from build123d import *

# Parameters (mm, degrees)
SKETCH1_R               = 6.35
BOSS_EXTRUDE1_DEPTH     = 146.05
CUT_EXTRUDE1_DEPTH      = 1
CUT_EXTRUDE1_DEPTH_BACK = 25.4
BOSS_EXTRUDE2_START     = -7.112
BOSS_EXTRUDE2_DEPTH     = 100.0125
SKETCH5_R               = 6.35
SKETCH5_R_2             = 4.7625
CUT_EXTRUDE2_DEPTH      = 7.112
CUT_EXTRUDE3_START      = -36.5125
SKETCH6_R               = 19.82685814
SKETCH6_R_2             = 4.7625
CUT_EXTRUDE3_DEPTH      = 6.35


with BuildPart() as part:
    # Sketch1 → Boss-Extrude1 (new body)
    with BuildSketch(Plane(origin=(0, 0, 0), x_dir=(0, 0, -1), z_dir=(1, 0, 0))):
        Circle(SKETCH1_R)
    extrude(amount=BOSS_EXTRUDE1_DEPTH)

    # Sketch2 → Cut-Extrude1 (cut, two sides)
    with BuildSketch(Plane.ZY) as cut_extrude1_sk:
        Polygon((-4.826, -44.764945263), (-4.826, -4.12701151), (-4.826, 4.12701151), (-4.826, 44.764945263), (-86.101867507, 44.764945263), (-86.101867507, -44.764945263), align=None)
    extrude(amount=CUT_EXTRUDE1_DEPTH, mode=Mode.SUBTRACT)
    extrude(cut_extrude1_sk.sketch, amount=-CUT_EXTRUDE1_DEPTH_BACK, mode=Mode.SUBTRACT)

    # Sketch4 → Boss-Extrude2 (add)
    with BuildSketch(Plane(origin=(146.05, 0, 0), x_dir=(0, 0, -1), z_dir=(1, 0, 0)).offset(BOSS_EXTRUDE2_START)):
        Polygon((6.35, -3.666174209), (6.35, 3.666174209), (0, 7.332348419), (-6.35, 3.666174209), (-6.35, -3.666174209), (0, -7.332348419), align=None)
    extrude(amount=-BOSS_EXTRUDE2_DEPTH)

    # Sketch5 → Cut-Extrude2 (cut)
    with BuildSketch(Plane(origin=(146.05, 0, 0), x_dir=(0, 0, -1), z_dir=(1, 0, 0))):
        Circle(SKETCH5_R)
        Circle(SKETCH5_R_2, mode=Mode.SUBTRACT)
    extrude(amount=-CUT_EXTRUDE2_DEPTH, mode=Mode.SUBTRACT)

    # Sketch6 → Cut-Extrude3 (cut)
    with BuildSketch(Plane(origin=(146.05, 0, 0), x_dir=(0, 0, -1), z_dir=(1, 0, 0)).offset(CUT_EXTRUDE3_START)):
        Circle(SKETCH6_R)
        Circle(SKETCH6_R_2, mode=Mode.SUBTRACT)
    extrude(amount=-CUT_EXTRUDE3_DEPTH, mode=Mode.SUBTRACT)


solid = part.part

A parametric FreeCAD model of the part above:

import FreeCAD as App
import Part
import Sketcher
Q = App.Units.Quantity

doc = App.newDocument("Part")
body = doc.addObject("PartDesign::Body", "Body")

# Sketch on YZ plane
sketch1 = doc.addObject("Sketcher::SketchObject", "Sketch")
body.addObject(sketch1)
sketch1.AttachmentSupport = (doc.YZ_Plane, [""])
sketch1.MapMode = "FlatFace"
sketch1.addGeometry(Part.Circle(App.Vector(0, 0, 0), App.Vector(0, 0, 1), 6), False)
sketch1.addConstraint(Sketcher.Constraint("Coincident", 0, 3, -1, 1))
sketch1.addConstraint(Sketcher.Constraint("Diameter", 0, Q("0.5 in")))
pad1 = doc.addObject("PartDesign::Pad", "Pad")
body.addObject(pad1)
pad1.Profile = sketch1
pad1.Length = Q("5.75 in")

# Sketch on YZ plane
sketch2 = doc.addObject("Sketcher::SketchObject", "Sketch001")
body.addObject(sketch2)
sketch2.AttachmentSupport = (doc.YZ_Plane, [""])
sketch2.MapMode = "FlatFace"
sketch2.addGeometry(Part.LineSegment(App.Vector(-45, -5, 0), App.Vector(45, -5, 0)), False)
sketch2.addGeometry(Part.LineSegment(App.Vector(45, -5, 0), App.Vector(45, -86, 0)), False)
sketch2.addGeometry(Part.LineSegment(App.Vector(45, -86, 0), App.Vector(-45, -86, 0)), False)
sketch2.addGeometry(Part.LineSegment(App.Vector(-45, -86, 0), App.Vector(-45, -5, 0)), False)
sketch2.addConstraint(Sketcher.Constraint("Coincident", 0, 2, 1, 1))
sketch2.addConstraint(Sketcher.Constraint("Coincident", 1, 2, 2, 1))
sketch2.addConstraint(Sketcher.Constraint("Coincident", 2, 2, 3, 1))
sketch2.addConstraint(Sketcher.Constraint("Coincident", 3, 2, 0, 1))
sketch2.addConstraint(Sketcher.Constraint("Horizontal", 0))
sketch2.addConstraint(Sketcher.Constraint("Vertical", 1))
sketch2.addConstraint(Sketcher.Constraint("Horizontal", 2))
sketch2.addConstraint(Sketcher.Constraint("Vertical", 3))
sketch2.addConstraint(Sketcher.Constraint("DistanceY", 0, 2, -1, 1, Q("0.19 in")))
sketch2.addConstraint(Sketcher.Constraint("DistanceX", 0, 1, 0, 2, 89.529891))
sketch2.addConstraint(Sketcher.Constraint("DistanceY", 1, 2, 1, 1, 81.275868))
sketch2.addConstraint(Sketcher.Constraint("DistanceX", -1, 1, 0, 2, 44.764945))
pocket1 = doc.addObject("PartDesign::Pocket", "Pocket")
body.addObject(pocket1)
pocket1.Profile = sketch2
pocket1.Type = "TwoLengths"
pocket1.Length = 1
pocket1.Length2 = Q("1 in")

# Sketch on YZ plane
sketch3 = doc.addObject("Sketcher::SketchObject", "Sketch002")
body.addObject(sketch3)
sketch3.AttachmentSupport = (doc.YZ_Plane, [""])
sketch3.MapMode = "FlatFace"
sketch3.AttachmentOffset = App.Placement(App.Vector(0, 0, 5.47 * 25.4), App.Rotation())
sketch3.addGeometry(Part.LineSegment(App.Vector(-4, -6, 0), App.Vector(4, -6, 0)), False)
sketch3.addGeometry(Part.LineSegment(App.Vector(4, -6, 0), App.Vector(7, 0, 0)), False)
sketch3.addGeometry(Part.LineSegment(App.Vector(7, 0, 0), App.Vector(4, 6, 0)), False)
sketch3.addGeometry(Part.LineSegment(App.Vector(4, 6, 0), App.Vector(-4, 6, 0)), False)
sketch3.addGeometry(Part.LineSegment(App.Vector(-4, 6, 0), App.Vector(-7, 0, 0)), False)
sketch3.addGeometry(Part.LineSegment(App.Vector(-7, 0, 0), App.Vector(-4, -6, 0)), False)
sketch3.addConstraint(Sketcher.Constraint("Coincident", 0, 2, 1, 1))
sketch3.addConstraint(Sketcher.Constraint("Coincident", 1, 2, 2, 1))
sketch3.addConstraint(Sketcher.Constraint("Coincident", 2, 2, 3, 1))
sketch3.addConstraint(Sketcher.Constraint("Coincident", 3, 2, 4, 1))
sketch3.addConstraint(Sketcher.Constraint("Coincident", 4, 2, 5, 1))
sketch3.addConstraint(Sketcher.Constraint("Coincident", 5, 2, 0, 1))
sketch3.addConstraint(Sketcher.Constraint("Horizontal", 0))
sketch3.addConstraint(Sketcher.Constraint("Horizontal", 3))
sketch3.addConstraint(Sketcher.Constraint("Symmetric", 0, 2, 3, 2, -1, 1))
sketch3.addConstraint(Sketcher.Constraint("Symmetric", 1, 2, 4, 2, -1, 1))
sketch3.addConstraint(Sketcher.Constraint("PointOnObject", 1, 2, -1))
sketch3.addConstraint(Sketcher.Constraint("Parallel", 2, 5))
sketch3.addConstraint(Sketcher.Constraint("Vertical", 0, 2, 2, 2))
sketch3.addConstraint(Sketcher.Constraint("Angle", 1, Q("60 deg")))
sketch3.addConstraint(Sketcher.Constraint("DistanceY", 0, 2, 2, 2, Q("0.5 in")))
sketch3.addConstraint(Sketcher.Constraint("DistanceX", 0, 1, 0, 2, 7.332348))
pad2 = doc.addObject("PartDesign::Pad", "Pad001")
body.addObject(pad2)
pad2.Profile = sketch3
pad2.Length = Q("3.9375 in")
pad2.Reversed = True

# Sketch on YZ plane
sketch4 = doc.addObject("Sketcher::SketchObject", "Sketch003")
body.addObject(sketch4)
sketch4.AttachmentSupport = (doc.YZ_Plane, [""])
sketch4.MapMode = "FlatFace"
sketch4.AttachmentOffset = App.Placement(App.Vector(0, 0, 5.75 * 25.4), App.Rotation())
sketch4.addGeometry(Part.Circle(App.Vector(0, 0, 0), App.Vector(0, 0, 1), 6.3), False)
sketch4.addGeometry(Part.Circle(App.Vector(0, 0, 0), App.Vector(0, 0, 1), 4.8), False)
sketch4.addConstraint(Sketcher.Constraint("Coincident", 0, 3, -1, 1))
sketch4.addConstraint(Sketcher.Constraint("Coincident", 1, 3, -1, 1))
sketch4.addConstraint(Sketcher.Constraint("Diameter", 0, Q("0.5 in")))
sketch4.addConstraint(Sketcher.Constraint("Diameter", 1, Q("0.375 in")))
pocket2 = doc.addObject("PartDesign::Pocket", "Pocket001")
body.addObject(pocket2)
pocket2.Profile = sketch4
pocket2.Length = Q("0.28 in")

# Sketch on YZ plane
sketch5 = doc.addObject("Sketcher::SketchObject", "Sketch004")
body.addObject(sketch5)
sketch5.AttachmentSupport = (doc.YZ_Plane, [""])
sketch5.MapMode = "FlatFace"
sketch5.AttachmentOffset = App.Placement(App.Vector(0, 0, 4.3125 * 25.4), App.Rotation())
sketch5.addGeometry(Part.Circle(App.Vector(0, 0, 0), App.Vector(0, 0, 1), 19.8), False)
sketch5.addGeometry(Part.Circle(App.Vector(0, 0, 0), App.Vector(0, 0, 1), 4.8), False)
sketch5.addConstraint(Sketcher.Constraint("Coincident", 0, 3, -1, 1))
sketch5.addConstraint(Sketcher.Constraint("Coincident", 1, 3, -1, 1))
sketch5.addConstraint(Sketcher.Constraint("Diameter", 1, Q("0.375 in")))
sketch5.addConstraint(Sketcher.Constraint("Diameter", 0, 39.653716))
pocket3 = doc.addObject("PartDesign::Pocket", "Pocket002")
body.addObject(pocket3)
pocket3.Profile = sketch5
pocket3.Length = Q("0.25 in")

doc.recompute()
